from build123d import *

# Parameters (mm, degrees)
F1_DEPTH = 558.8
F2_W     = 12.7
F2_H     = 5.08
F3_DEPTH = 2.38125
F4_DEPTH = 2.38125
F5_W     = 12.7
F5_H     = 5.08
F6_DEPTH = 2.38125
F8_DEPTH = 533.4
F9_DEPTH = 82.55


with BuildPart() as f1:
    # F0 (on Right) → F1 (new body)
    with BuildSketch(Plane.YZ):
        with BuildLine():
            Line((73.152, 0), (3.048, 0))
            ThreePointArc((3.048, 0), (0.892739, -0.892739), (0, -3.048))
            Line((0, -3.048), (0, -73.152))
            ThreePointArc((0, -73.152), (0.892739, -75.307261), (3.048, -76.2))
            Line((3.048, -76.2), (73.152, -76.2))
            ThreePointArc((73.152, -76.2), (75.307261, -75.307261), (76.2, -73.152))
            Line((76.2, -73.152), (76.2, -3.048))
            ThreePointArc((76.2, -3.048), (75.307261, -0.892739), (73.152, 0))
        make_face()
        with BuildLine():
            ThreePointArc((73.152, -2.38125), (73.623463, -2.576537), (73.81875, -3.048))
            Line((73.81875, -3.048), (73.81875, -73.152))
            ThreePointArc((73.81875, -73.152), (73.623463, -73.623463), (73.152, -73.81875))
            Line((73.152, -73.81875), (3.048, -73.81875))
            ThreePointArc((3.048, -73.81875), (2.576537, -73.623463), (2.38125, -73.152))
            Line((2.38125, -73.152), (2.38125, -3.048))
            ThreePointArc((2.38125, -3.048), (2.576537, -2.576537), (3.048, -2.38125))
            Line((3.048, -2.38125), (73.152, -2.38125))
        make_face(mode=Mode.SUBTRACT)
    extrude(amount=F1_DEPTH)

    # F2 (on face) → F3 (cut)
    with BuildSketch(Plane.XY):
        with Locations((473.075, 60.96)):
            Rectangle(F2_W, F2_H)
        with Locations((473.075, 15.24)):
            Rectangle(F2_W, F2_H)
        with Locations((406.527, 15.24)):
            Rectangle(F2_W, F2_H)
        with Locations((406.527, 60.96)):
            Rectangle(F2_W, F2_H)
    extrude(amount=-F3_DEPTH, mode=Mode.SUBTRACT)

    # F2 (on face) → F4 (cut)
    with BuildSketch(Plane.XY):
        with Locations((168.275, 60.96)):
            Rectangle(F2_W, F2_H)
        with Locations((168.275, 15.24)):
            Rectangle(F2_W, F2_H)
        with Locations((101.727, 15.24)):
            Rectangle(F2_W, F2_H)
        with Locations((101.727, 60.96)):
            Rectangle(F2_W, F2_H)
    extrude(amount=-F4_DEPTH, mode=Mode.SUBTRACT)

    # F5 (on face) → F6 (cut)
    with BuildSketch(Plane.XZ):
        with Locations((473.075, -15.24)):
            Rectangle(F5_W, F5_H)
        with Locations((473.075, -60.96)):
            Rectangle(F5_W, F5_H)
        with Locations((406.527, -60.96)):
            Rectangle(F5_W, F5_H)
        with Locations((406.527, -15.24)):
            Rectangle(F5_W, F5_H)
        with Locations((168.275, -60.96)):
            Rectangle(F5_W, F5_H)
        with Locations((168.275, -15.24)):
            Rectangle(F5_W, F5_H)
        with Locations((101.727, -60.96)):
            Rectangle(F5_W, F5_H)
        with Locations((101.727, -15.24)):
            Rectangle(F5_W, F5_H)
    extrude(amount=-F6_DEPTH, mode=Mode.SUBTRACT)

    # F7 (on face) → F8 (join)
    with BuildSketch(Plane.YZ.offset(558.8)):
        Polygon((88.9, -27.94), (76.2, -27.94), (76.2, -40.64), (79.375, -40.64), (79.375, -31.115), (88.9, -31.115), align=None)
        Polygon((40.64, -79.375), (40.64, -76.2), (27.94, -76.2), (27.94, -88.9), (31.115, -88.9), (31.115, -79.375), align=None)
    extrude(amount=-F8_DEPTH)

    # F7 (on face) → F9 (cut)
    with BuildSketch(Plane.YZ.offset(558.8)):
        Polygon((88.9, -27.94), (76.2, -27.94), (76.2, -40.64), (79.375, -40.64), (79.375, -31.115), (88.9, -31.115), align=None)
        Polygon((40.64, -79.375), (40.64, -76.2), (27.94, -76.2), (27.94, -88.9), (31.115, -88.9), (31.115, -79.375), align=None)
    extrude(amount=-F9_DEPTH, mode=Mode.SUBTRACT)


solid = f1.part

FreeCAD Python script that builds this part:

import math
import FreeCAD as App
import Part
import Sketcher

V = App.Vector
Q = App.Units.Quantity


def add_polygon(sketch, points):
    """Adds a closed chain of lines whose ends are joined by coincident constraints."""
    first, n = sketch.GeometryCount, len(points)
    for a, b in zip(points, points[1:] + points[:1]):
        sketch.addGeometry(Part.LineSegment(App.Vector(*a, 0), App.Vector(*b, 0)), False)
    for i in range(n):
        sketch.addConstraint(Sketcher.Constraint("Coincident", first + i, 2, first + (i + 1) % n, 1))

doc = App.newDocument("Part")
body = doc.addObject("PartDesign::Body", "Body")

sketch1 = doc.addObject("Sketcher::SketchObject", "Sketch")
body.addObject(sketch1)
sketch1.AttachmentSupport = (doc.YZ_Plane, [""])
sketch1.MapMode = "FlatFace"
sketch1.addGeometry(Part.LineSegment(V(73.2, 0, 0), V(3, 0, 0)), False)
sketch1.addGeometry(Part.ArcOfCircle(Part.Circle(V(3, -3, 0), V(0, 0, 1), 3), math.radians(90), math.radians(180)), False)
sketch1.addGeometry(Part.LineSegment(V(0, -3, 0), V(0, -73.2, 0)), False)
sketch1.addGeometry(Part.ArcOfCircle(Part.Circle(V(3, -73.2, 0), V(0, 0, 1), 3), math.radians(-180), math.radians(-90)), False)
sketch1.addGeometry(Part.LineSegment(V(3, -76.2, 0), V(73.2, -76.2, 0)), False)
sketch1.addGeometry(Part.ArcOfCircle(Part.Circle(V(73.2, -73.2, 0), V(0, 0, 1), 3), math.radians(-90), math.radians(0)), False)
sketch1.addGeometry(Part.LineSegment(V(76.2, -73.2, 0), V(76.2, -3, 0)), False)
sketch1.addGeometry(Part.ArcOfCircle(Part.Circle(V(73.2, -3, 0), V(0, 0, 1), 3), math.radians(0), math.radians(90)), False)
sketch1.addGeometry(Part.LineSegment(V(3, -2.4, 0), V(73.2, -2.4, 0)), False)
sketch1.addGeometry(Part.ArcOfCircle(Part.Circle(V(73.2, -3, 0), V(0, 0, 1), 0.7), math.radians(0), math.radians(90)), False)
sketch1.addGeometry(Part.LineSegment(V(73.8, -3, 0), V(73.8, -73.2, 0)), False)
sketch1.addGeometry(Part.ArcOfCircle(Part.Circle(V(73.2, -73.2, 0), V(0, 0, 1), 0.7), math.radians(-90), math.radians(0)), False)
sketch1.addGeometry(Part.LineSegment(V(73.2, -73.8, 0), V(3, -73.8, 0)), False)
sketch1.addGeometry(Part.ArcOfCircle(Part.Circle(V(3, -73.2, 0), V(0, 0, 1), 0.7), math.radians(-180), math.radians(-90)), False)
sketch1.addGeometry(Part.LineSegment(V(2.4, -73.2, 0), V(2.4, -3, 0)), False)
sketch1.addGeometry(Part.ArcOfCircle(Part.Circle(V(3, -3, 0), V(0, 0, 1), 0.7), math.radians(90), math.radians(180)), False)
sketch1.addConstraint(Sketcher.Constraint("Tangent", 0, 2, 1, 1))
sketch1.addConstraint(Sketcher.Constraint("Tangent", 1, 2, 2, 1))
sketch1.addConstraint(Sketcher.Constraint("Tangent", 2, 2, 3, 1))
sketch1.addConstraint(Sketcher.Constraint("Tangent", 3, 2, 4, 1))
sketch1.addConstraint(Sketcher.Constraint("Tangent", 4, 2, 5, 1))
sketch1.addConstraint(Sketcher.Constraint("Tangent", 5, 2, 6, 1))
sketch1.addConstraint(Sketcher.Constraint("Tangent", 6, 2, 7, 1))
sketch1.addConstraint(Sketcher.Constraint("Tangent", 7, 2, 0, 1))
sketch1.addConstraint(Sketcher.Constraint("Coincident", 8, 2, 9, 2))
sketch1.addConstraint(Sketcher.Constraint("Coincident", 9, 1, 10, 1))
sketch1.addConstraint(Sketcher.Constraint("Coincident", 10, 2, 11, 2))
sketch1.addConstraint(Sketcher.Constraint("Coincident", 11, 1, 12, 1))
sketch1.addConstraint(Sketcher.Constraint("Coincident", 12, 2, 13, 2))
sketch1.addConstraint(Sketcher.Constraint("Coincident", 13, 1, 14, 1))
sketch1.addConstraint(Sketcher.Constraint("Coincident", 14, 2, 15, 2))
sketch1.addConstraint(Sketcher.Constraint("Coincident", 15, 1, 8, 1))
sketch1.addConstraint(Sketcher.Constraint("Horizontal", 0))
sketch1.addConstraint(Sketcher.Constraint("Vertical", 2))
sketch1.addConstraint(Sketcher.Constraint("Horizontal", 4))
sketch1.addConstraint(Sketcher.Constraint("Vertical", 6))
sketch1.addConstraint(Sketcher.Constraint("Horizontal", 8))
sketch1.addConstraint(Sketcher.Constraint("Vertical", 10))
sketch1.addConstraint(Sketcher.Constraint("Horizontal", 12))
sketch1.addConstraint(Sketcher.Constraint("Vertical", 14))
sketch1.addConstraint(Sketcher.Constraint("Coincident", 9, 3, 7, 3))
sketch1.addConstraint(Sketcher.Constraint("Coincident", 11, 3, 5, 3))
sketch1.addConstraint(Sketcher.Constraint("Coincident", 13, 3, 3, 3))
sketch1.addConstraint(Sketcher.Constraint("Equal", 1, 3))
sketch1.addConstraint(Sketcher.Constraint("Equal", 3, 5))
sketch1.addConstraint(Sketcher.Constraint("Equal", 5, 7))
sketch1.addConstraint(Sketcher.Constraint("Equal", 13, 15))
sketch1.addConstraint(Sketcher.Constraint("PointOnObject", 0, 2, -1))
sketch1.addConstraint(Sketcher.Constraint("PointOnObject", 1, 2, -2))
sketch1.addConstraint(Sketcher.Constraint("Horizontal", 6, 2, 9, 1))
sketch1.addConstraint(Sketcher.Constraint("Horizontal", 5, 2, 10, 2))
sketch1.addConstraint(Sketcher.Constraint("Horizontal", 10, 2, 13, 1))
sketch1.addConstraint(Sketcher.Constraint("Horizontal", 9, 1, 14, 2))
sketch1.addConstraint(Sketcher.Constraint("Vertical", 7, 2, 8, 2))
sketch1.addConstraint(Sketcher.Constraint("Vertical", 8, 2, 11, 1))
sketch1.addConstraint(Sketcher.Constraint("Vertical", 3, 2, 12, 2))
sketch1.addConstraint(Sketcher.Constraint("Vertical", 12, 2, 15, 1))
sketch1.addConstraint(Sketcher.Constraint("Equal", 12, 2))
sketch1.addConstraint(Sketcher.Constraint("Radius", 1, Q("0.1200001 in")))
sketch1.addConstraint(Sketcher.Constraint("DistanceY", 3, 2, -1, 1, Q("3 in")))
sketch1.addConstraint(Sketcher.Constraint("DistanceY", 8, 2, -1, 1, Q("0.09375 in")))
pad1 = doc.addObject("PartDesign::Pad", "Pad")
body.addObject(pad1)
pad1.Profile = sketch1
pad1.Length = Q("22 in")

sketch2 = doc.addObject("Sketcher::SketchObject", "Sketch001")
body.addObject(sketch2)
sketch2.AttachmentSupport = (doc.XY_Plane, [""])
sketch2.MapMode = "FlatFace"
add_polygon(sketch2, [(467, 64), (467, 58), (479, 58), (479, 64)])
add_polygon(sketch2, [(467, 18), (467, 13), (479, 13), (479, 18)])
add_polygon(sketch2, [(400, 18), (400, 13), (413, 13), (413, 18)])
add_polygon(sketch2, [(400, 64), (400, 58), (413, 58), (413, 64)])
sketch2.addConstraint(Sketcher.Constraint("Vertical", 0))
sketch2.addConstraint(Sketcher.Constraint("Horizontal", 1))
sketch2.addConstraint(Sketcher.Constraint("Vertical", 2))
sketch2.addConstraint(Sketcher.Constraint("Horizontal", 3))
sketch2.addConstraint(Sketcher.Constraint("Vertical", 4))
sketch2.addConstraint(Sketcher.Constraint("Horizontal", 5))
sketch2.addConstraint(Sketcher.Constraint("Vertical", 6))
sketch2.addConstraint(Sketcher.Constraint("Horizontal", 7))
sketch2.addConstraint(Sketcher.Constraint("Vertical", 8))
sketch2.addConstraint(Sketcher.Constraint("Horizontal", 9))
sketch2.addConstraint(Sketcher.Constraint("Vertical", 10))
sketch2.addConstraint(Sketcher.Constraint("Horizontal", 11))
sketch2.addConstraint(Sketcher.Constraint("Vertical", 12))
sketch2.addConstraint(Sketcher.Constraint("Horizontal", 13))
sketch2.addConstraint(Sketcher.Constraint("Vertical", 14))
sketch2.addConstraint(Sketcher.Constraint("Horizontal", 15))
sketch2.addConstraint(Sketcher.Constraint("Horizontal", 5, 2, 8, 2))
sketch2.addConstraint(Sketcher.Constraint("Horizontal", 7, 2, 10, 2))
sketch2.addConstraint(Sketcher.Constraint("Horizontal", 1, 2, 12, 2))
sketch2.addConstraint(Sketcher.Constraint("Horizontal", 3, 2, 14, 2))
sketch2.addConstraint(Sketcher.Constraint("Vertical", 3, 2, 4, 2))
sketch2.addConstraint(Sketcher.Constraint("Vertical", 2, 2, 5, 2))
sketch2.addConstraint(Sketcher.Constraint("Vertical", 11, 2, 12, 2))
sketch2.addConstraint(Sketcher.Constraint("Vertical", 10, 2, 13, 2))
sketch2.addConstraint(Sketcher.Constraint("Equal", 7, 9))
sketch2.addConstraint(Sketcher.Constraint("Equal", 2, 4))
sketch2.addConstraint(Sketcher.Constraint("DistanceX", 1, 1, 1, 2, Q("0.5 in")))
sketch2.addConstraint(Sketcher.Constraint("DistanceY", 0, 2, 0, 1, Q("0.2 in")))
sketch2.addConstraint(Sketcher.Constraint("DistanceY", 4, 2, 3, 2, Q("2 in")))
sketch2.addConstraint(Sketcher.Constraint("DistanceY", -1, 1, 0, 2, Q("2.3 in")))
sketch2.addConstraint(Sketcher.Constraint("DistanceX", 8, 2, 4, 2, Q("2.62 in")))
sketch2.addConstraint(Sketcher.Constraint("DistanceX", -1, 1, 0, 2, Q("18.375 in")))
pocket1 = doc.addObject("PartDesign::Pocket", "Pocket")
body.addObject(pocket1)
pocket1.Profile = sketch2
pocket1.Length = Q("0.09375 in")

sketch3 = doc.addObject("Sketcher::SketchObject", "Sketch002")
body.addObject(sketch3)
sketch3.AttachmentSupport = (doc.XY_Plane, [""])
sketch3.MapMode = "FlatFace"
add_polygon(sketch3, [(162, 64), (162, 58), (175, 58), (175, 64)])
add_polygon(sketch3, [(162, 18), (162, 13), (175, 13), (175, 18)])
add_polygon(sketch3, [(95, 18), (95, 13), (108, 13), (108, 18)])
add_polygon(sketch3, [(95, 64), (95, 58), (108, 58), (108, 64)])
sketch3.addConstraint(Sketcher.Constraint("Vertical", 0))
sketch3.addConstraint(Sketcher.Constraint("Horizontal", 1))
sketch3.addConstraint(Sketcher.Constraint("Vertical", 2))
sketch3.addConstraint(Sketcher.Constraint("Horizontal", 3))
sketch3.addConstraint(Sketcher.Constraint("Vertical", 4))
sketch3.addConstraint(Sketcher.Constraint("Horizontal", 5))
sketch3.addConstraint(Sketcher.Constraint("Vertical", 6))
sketch3.addConstraint(Sketcher.Constraint("Horizontal", 7))
sketch3.addConstraint(Sketcher.Constraint("Vertical", 8))
sketch3.addConstraint(Sketcher.Constraint("Horizontal", 9))
sketch3.addConstraint(Sketcher.Constraint("Vertical", 10))
sketch3.addConstraint(Sketcher.Constraint("Horizontal", 11))
sketch3.addConstraint(Sketcher.Constraint("Vertical", 12))
sketch3.addConstraint(Sketcher.Constraint("Horizontal", 13))
sketch3.addConstraint(Sketcher.Constraint("Vertical", 14))
sketch3.addConstraint(Sketcher.Constraint("Horizontal", 15))
sketch3.addConstraint(Sketcher.Constraint("Horizontal", 5, 2, 8, 2))
sketch3.addConstraint(Sketcher.Constraint("Horizontal", 7, 2, 10, 2))
sketch3.addConstraint(Sketcher.Constraint("Horizontal", 1, 2, 12, 2))
sketch3.addConstraint(Sketcher.Constraint("Horizontal", 3, 2, 14, 2))
sketch3.addConstraint(Sketcher.Constraint("Vertical", 3, 2, 4, 2))
sketch3.addConstraint(Sketcher.Constraint("Vertical", 2, 2, 5, 2))
sketch3.addConstraint(Sketcher.Constraint("Vertical", 11, 2, 12, 2))
sketch3.addConstraint(Sketcher.Constraint("Vertical", 10, 2, 13, 2))
sketch3.addConstraint(Sketcher.Constraint("Equal", 7, 9))
sketch3.addConstraint(Sketcher.Constraint("Equal", 2, 4))
sketch3.addConstraint(Sketcher.Constraint("DistanceX", 1, 1, 1, 2, Q("0.5 in")))
sketch3.addConstraint(Sketcher.Constraint("DistanceY", 0, 2, 0, 1, Q("0.2 in")))
sketch3.addConstraint(Sketcher.Constraint("DistanceY", 4, 2, 3, 2, Q("2 in")))
sketch3.addConstraint(Sketcher.Constraint("DistanceY", -1, 1, 0, 2, Q("2.3 in")))
sketch3.addConstraint(Sketcher.Constraint("DistanceX", 8, 2, 4, 2, Q("2.62 in")))
sketch3.addConstraint(Sketcher.Constraint("DistanceX", -1, 1, 0, 2, Q("6.375 in")))
pocket2 = doc.addObject("PartDesign::Pocket", "Pocket001")
body.addObject(pocket2)
pocket2.Profile = sketch3
pocket2.Length = Q("0.09375 in")

sketch4 = doc.addObject("Sketcher::SketchObject", "Sketch003")
body.addObject(sketch4)
sketch4.AttachmentSupport = (doc.XZ_Plane, [""])
sketch4.MapMode = "FlatFace"
add_polygon(sketch4, [(467, -13), (467, -18), (479, -18), (479, -13)])
add_polygon(sketch4, [(467, -58), (467, -64), (479, -64), (479, -58)])
add_polygon(sketch4, [(400, -58), (400, -64), (413, -64), (413, -58)])
add_polygon(sketch4, [(400, -13), (400, -18), (413, -18), (413, -13)])
add_polygon(sketch4, [(162, -58), (162, -64), (175, -64), (175, -58)])
add_polygon(sketch4, [(162, -13), (162, -18), (175, -18), (175, -13)])
add_polygon(sketch4, [(95, -58), (95, -64), (108, -64), (108, -58)])
add_polygon(sketch4, [(95, -13), (95, -18), (108, -18), (108, -13)])
sketch4.addConstraint(Sketcher.Constraint("Vertical", 0))
sketch4.addConstraint(Sketcher.Constraint("Horizontal", 1))
sketch4.addConstraint(Sketcher.Constraint("Vertical", 2))
sketch4.addConstraint(Sketcher.Constraint("Horizontal", 3))
sketch4.addConstraint(Sketcher.Constraint("Vertical", 4))
sketch4.addConstraint(Sketcher.Constraint("Horizontal", 5))
sketch4.addConstraint(Sketcher.Constraint("Vertical", 6))
sketch4.addConstraint(Sketcher.Constraint("Horizontal", 7))
sketch4.addConstraint(Sketcher.Constraint("Vertical", 8))
sketch4.addConstraint(Sketcher.Constraint("Horizontal", 9))
sketch4.addConstraint(Sketcher.Constraint("Vertical", 10))
sketch4.addConstraint(Sketcher.Constraint("Horizontal", 11))
sketch4.addConstraint(Sketcher.Constraint("Vertical", 12))
sketch4.addConstraint(Sketcher.Constraint("Horizontal", 13))
sketch4.addConstraint(Sketcher.Constraint("Vertical", 14))
sketch4.addConstraint(Sketcher.Constraint("Horizontal", 15))
sketch4.addConstraint(Sketcher.Constraint("Vertical", 16))
sketch4.addConstraint(Sketcher.Constraint("Horizontal", 17))
sketch4.addConstraint(Sketcher.Constraint("Vertical", 18))
sketch4.addConstraint(Sketcher.Constraint("Horizontal", 19))
sketch4.addConstraint(Sketcher.Constraint("Vertical", 20))
sketch4.addConstraint(Sketcher.Constraint("Horizontal", 21))
sketch4.addConstraint(Sketcher.Constraint("Vertical", 22))
sketch4.addConstraint(Sketcher.Constraint("Horizontal", 23))
sketch4.addConstraint(Sketcher.Constraint("Vertical", 24))
sketch4.addConstraint(Sketcher.Constraint("Horizontal", 25))
sketch4.addConstraint(Sketcher.Constraint("Vertical", 26))
sketch4.addConstraint(Sketcher.Constraint("Horizontal", 27))
sketch4.addConstraint(Sketcher.Constraint("Vertical", 28))
sketch4.addConstraint(Sketcher.Constraint("Horizontal", 29))
sketch4.addConstraint(Sketcher.Constraint("Vertical", 30))
sketch4.addConstraint(Sketcher.Constraint("Horizontal", 31))
sketch4.addConstraint(Sketcher.Constraint("Horizontal", 5, 2, 8, 2))
sketch4.addConstraint(Sketcher.Constraint("Horizontal", 7, 2, 10, 2))
sketch4.addConstraint(Sketcher.Constraint("Horizontal", 1, 2, 12, 2))
sketch4.addConstraint(Sketcher.Constraint("Horizontal", 3, 2, 14, 2))
sketch4.addConstraint(Sketcher.Constraint("Horizontal", 9, 2, 16, 2))
sketch4.addConstraint(Sketcher.Constraint("Horizontal", 11, 2, 18, 2))
sketch4.addConstraint(Sketcher.Constraint("Horizontal", 13, 2, 20, 2))
sketch4.addConstraint(Sketcher.Constraint("Horizontal", 15, 2, 22, 2))
sketch4.addConstraint(Sketcher.Constraint("Horizontal", 17, 2, 24, 2))
sketch4.addConstraint(Sketcher.Constraint("Horizontal", 19, 2, 26, 2))
sketch4.addConstraint(Sketcher.Constraint("Horizontal", 21, 2, 28, 2))
sketch4.addConstraint(Sketcher.Constraint("Horizontal", 23, 2, 30, 2))
sketch4.addConstraint(Sketcher.Constraint("Vertical", 3, 2, 4, 2))
sketch4.addConstraint(Sketcher.Constraint("Vertical", 2, 2, 5, 2))
sketch4.addConstraint(Sketcher.Constraint("Vertical", 11, 2, 12, 2))
sketch4.addConstraint(Sketcher.Constraint("Vertical", 10, 2, 13, 2))
sketch4.addConstraint(Sketcher.Constraint("Vertical", 19, 2, 20, 2))
sketch4.addConstraint(Sketcher.Constraint("Vertical", 18, 2, 21, 2))
sketch4.addConstraint(Sketcher.Constraint("Vertical", 27, 2, 28, 2))
sketch4.addConstraint(Sketcher.Constraint("Vertical", 26, 2, 29, 2))
sketch4.addConstraint(Sketcher.Constraint("Equal", 7, 9))
sketch4.addConstraint(Sketcher.Constraint("Equal", 15, 17))
sketch4.addConstraint(Sketcher.Constraint("Equal", 23, 25))
sketch4.addConstraint(Sketcher.Constraint("Equal", 2, 4))
sketch4.addConstraint(Sketcher.Constraint("DistanceX", 1, 1, 1, 2, Q("0.5 in")))
sketch4.addConstraint(Sketcher.Constraint("DistanceY", 0, 2, 0, 1, Q("0.2 in")))
sketch4.addConstraint(Sketcher.Constraint("DistanceY", 4, 2, 3, 2, Q("2 in")))
sketch4.addConstraint(Sketcher.Constraint("DistanceY", 0, 2, -1, 1, Q("0.7 in")))
sketch4.addConstraint(Sketcher.Constraint("DistanceX", 8, 2, 4, 2, Q("2.62 in")))
sketch4.addConstraint(Sketcher.Constraint("DistanceX", 16, 2, 8, 2, Q("9.38 in")))
sketch4.addConstraint(Sketcher.Constraint("DistanceX", 24, 2, 16, 2, Q("2.62 in")))
sketch4.addConstraint(Sketcher.Constraint("DistanceX", -1, 1, 0, 2, Q("18.375 in")))
pocket3 = doc.addObject("PartDesign::Pocket", "Pocket002")
body.addObject(pocket3)
pocket3.Profile = sketch4
pocket3.Length = Q("0.09375 in")

sketch5 = doc.addObject("Sketcher::SketchObject", "Sketch004")
body.addObject(sketch5)
sketch5.AttachmentSupport = (doc.YZ_Plane, [""])
sketch5.MapMode = "FlatFace"
sketch5.AttachmentOffset = App.Placement(V(0, 0, 22 * 25.4), App.Rotation())
add_polygon(sketch5, [(88.9, -27.9), (76.2, -27.9), (76.2, -40.6), (79.4, -40.6), (79.4, -31.1), (88.9, -31.1)])
add_polygon(sketch5, [(40.6, -79.4), (40.6, -76.2), (27.9, -76.2), (27.9, -88.9), (31.1, -88.9), (31.1, -79.4)])
sketch5.addConstraint(Sketcher.Constraint("Horizontal", 0))
sketch5.addConstraint(Sketcher.Constraint("Vertical", 1))
sketch5.addConstraint(Sketcher.Constraint("Horizontal", 2))
sketch5.addConstraint(Sketcher.Constraint("Vertical", 3))
sketch5.addConstraint(Sketcher.Constraint("Horizontal", 4))
sketch5.addConstraint(Sketcher.Constraint("Vertical", 5))
sketch5.addConstraint(Sketcher.Constraint("Vertical", 6))
sketch5.addConstraint(Sketcher.Constraint("Horizontal", 7))
sketch5.addConstraint(Sketcher.Constraint("Vertical", 8))
sketch5.addConstraint(Sketcher.Constraint("Horizontal", 9))
sketch5.addConstraint(Sketcher.Constraint("Vertical", 10))
sketch5.addConstraint(Sketcher.Constraint("Horizontal", 11))
sketch5.addConstraint(Sketcher.Constraint("Equal", 0, 7))
sketch5.addConstraint(Sketcher.Constraint("Equal", 2, 9))
sketch5.addConstraint(Sketcher.Constraint("Equal", 7, 1))
sketch5.addConstraint(Sketcher.Constraint("Equal", 11, 3))
sketch5.addConstraint(Sketcher.Constraint("Equal", 5, 6))
sketch5.addConstraint(Sketcher.Constraint("Equal", 1, 8))
sketch5.addConstraint(Sketcher.Constraint("DistanceX", 0, 2, 0, 1, Q("0.5 in")))
sketch5.addConstraint(Sketcher.Constraint("DistanceX", -1, 1, 0, 2, Q("3 in")))
sketch5.addConstraint(Sketcher.Constraint("DistanceY", 6, 2, -1, 1, Q("3 in")))
sketch5.addConstraint(Sketcher.Constraint("DistanceY", 0, 2, -1, 1, Q("1.1 in")))
sketch5.addConstraint(Sketcher.Constraint("DistanceX", -1, 1, 6, 2, Q("1.6 in")))
sketch5.addConstraint(Sketcher.Constraint("DistanceX", 2, 1, 2, 2, Q("0.125 in")))
pad2 = doc.addObject("PartDesign::Pad", "Pad001")
body.addObject(pad2)
pad2.Profile = sketch5
pad2.Length = Q("21 in")
pad2.Reversed = True

sketch6 = doc.addObject("Sketcher::SketchObject", "Sketch005")
body.addObject(sketch6)
sketch6.AttachmentSupport = (doc.YZ_Plane, [""])
sketch6.MapMode = "FlatFace"
sketch6.AttachmentOffset = App.Placement(V(0, 0, 22 * 25.4), App.Rotation())
add_polygon(sketch6, [(88.9, -27.9), (76.2, -27.9), (76.2, -40.6), (79.4, -40.6), (79.4, -31.1), (88.9, -31.1)])
add_polygon(sketch6, [(40.6, -79.4), (40.6, -76.2), (27.9, -76.2), (27.9, -88.9), (31.1, -88.9), (31.1, -79.4)])
sketch6.addConstraint(Sketcher.Constraint("Horizontal", 0))
sketch6.addConstraint(Sketcher.Constraint("Vertical", 1))
sketch6.addConstraint(Sketcher.Constraint("Horizontal", 2))
sketch6.addConstraint(Sketcher.Constraint("Vertical", 3))
sketch6.addConstraint(Sketcher.Constraint("Horizontal", 4))
sketch6.addConstraint(Sketcher.Constraint("Vertical", 5))
sketch6.addConstraint(Sketcher.Constraint("Vertical", 6))
sketch6.addConstraint(Sketcher.Constraint("Horizontal", 7))
sketch6.addConstraint(Sketcher.Constraint("Vertical", 8))
sketch6.addConstraint(Sketcher.Constraint("Horizontal", 9))
sketch6.addConstraint(Sketcher.Constraint("Vertical", 10))
sketch6.addConstraint(Sketcher.Constraint("Horizontal", 11))
sketch6.addConstraint(Sketcher.Constraint("Equal", 0, 7))
sketch6.addConstraint(Sketcher.Constraint("Equal", 2, 9))
sketch6.addConstraint(Sketcher.Constraint("Equal", 7, 1))
sketch6.addConstraint(Sketcher.Constraint("Equal", 11, 3))
sketch6.addConstraint(Sketcher.Constraint("Equal", 5, 6))
sketch6.addConstraint(Sketcher.Constraint("Equal", 1, 8))
sketch6.addConstraint(Sketcher.Constraint("DistanceX", 0, 2, 0, 1, Q("0.5 in")))
sketch6.addConstraint(Sketcher.Constraint("DistanceX", -1, 1, 0, 2, Q("3 in")))
sketch6.addConstraint(Sketcher.Constraint("DistanceY", 6, 2, -1, 1, Q("3 in")))
sketch6.addConstraint(Sketcher.Constraint("DistanceY", 0, 2, -1, 1, Q("1.1 in")))
sketch6.addConstraint(Sketcher.Constraint("DistanceX", -1, 1, 6, 2, Q("1.6 in")))
sketch6.addConstraint(Sketcher.Constraint("DistanceX", 2, 1, 2, 2, Q("0.125 in")))
pocket4 = doc.addObject("PartDesign::Pocket", "Pocket003")
body.addObject(pocket4)
pocket4.Profile = sketch6
pocket4.Length = Q("3.25 in")

doc.recompute()
